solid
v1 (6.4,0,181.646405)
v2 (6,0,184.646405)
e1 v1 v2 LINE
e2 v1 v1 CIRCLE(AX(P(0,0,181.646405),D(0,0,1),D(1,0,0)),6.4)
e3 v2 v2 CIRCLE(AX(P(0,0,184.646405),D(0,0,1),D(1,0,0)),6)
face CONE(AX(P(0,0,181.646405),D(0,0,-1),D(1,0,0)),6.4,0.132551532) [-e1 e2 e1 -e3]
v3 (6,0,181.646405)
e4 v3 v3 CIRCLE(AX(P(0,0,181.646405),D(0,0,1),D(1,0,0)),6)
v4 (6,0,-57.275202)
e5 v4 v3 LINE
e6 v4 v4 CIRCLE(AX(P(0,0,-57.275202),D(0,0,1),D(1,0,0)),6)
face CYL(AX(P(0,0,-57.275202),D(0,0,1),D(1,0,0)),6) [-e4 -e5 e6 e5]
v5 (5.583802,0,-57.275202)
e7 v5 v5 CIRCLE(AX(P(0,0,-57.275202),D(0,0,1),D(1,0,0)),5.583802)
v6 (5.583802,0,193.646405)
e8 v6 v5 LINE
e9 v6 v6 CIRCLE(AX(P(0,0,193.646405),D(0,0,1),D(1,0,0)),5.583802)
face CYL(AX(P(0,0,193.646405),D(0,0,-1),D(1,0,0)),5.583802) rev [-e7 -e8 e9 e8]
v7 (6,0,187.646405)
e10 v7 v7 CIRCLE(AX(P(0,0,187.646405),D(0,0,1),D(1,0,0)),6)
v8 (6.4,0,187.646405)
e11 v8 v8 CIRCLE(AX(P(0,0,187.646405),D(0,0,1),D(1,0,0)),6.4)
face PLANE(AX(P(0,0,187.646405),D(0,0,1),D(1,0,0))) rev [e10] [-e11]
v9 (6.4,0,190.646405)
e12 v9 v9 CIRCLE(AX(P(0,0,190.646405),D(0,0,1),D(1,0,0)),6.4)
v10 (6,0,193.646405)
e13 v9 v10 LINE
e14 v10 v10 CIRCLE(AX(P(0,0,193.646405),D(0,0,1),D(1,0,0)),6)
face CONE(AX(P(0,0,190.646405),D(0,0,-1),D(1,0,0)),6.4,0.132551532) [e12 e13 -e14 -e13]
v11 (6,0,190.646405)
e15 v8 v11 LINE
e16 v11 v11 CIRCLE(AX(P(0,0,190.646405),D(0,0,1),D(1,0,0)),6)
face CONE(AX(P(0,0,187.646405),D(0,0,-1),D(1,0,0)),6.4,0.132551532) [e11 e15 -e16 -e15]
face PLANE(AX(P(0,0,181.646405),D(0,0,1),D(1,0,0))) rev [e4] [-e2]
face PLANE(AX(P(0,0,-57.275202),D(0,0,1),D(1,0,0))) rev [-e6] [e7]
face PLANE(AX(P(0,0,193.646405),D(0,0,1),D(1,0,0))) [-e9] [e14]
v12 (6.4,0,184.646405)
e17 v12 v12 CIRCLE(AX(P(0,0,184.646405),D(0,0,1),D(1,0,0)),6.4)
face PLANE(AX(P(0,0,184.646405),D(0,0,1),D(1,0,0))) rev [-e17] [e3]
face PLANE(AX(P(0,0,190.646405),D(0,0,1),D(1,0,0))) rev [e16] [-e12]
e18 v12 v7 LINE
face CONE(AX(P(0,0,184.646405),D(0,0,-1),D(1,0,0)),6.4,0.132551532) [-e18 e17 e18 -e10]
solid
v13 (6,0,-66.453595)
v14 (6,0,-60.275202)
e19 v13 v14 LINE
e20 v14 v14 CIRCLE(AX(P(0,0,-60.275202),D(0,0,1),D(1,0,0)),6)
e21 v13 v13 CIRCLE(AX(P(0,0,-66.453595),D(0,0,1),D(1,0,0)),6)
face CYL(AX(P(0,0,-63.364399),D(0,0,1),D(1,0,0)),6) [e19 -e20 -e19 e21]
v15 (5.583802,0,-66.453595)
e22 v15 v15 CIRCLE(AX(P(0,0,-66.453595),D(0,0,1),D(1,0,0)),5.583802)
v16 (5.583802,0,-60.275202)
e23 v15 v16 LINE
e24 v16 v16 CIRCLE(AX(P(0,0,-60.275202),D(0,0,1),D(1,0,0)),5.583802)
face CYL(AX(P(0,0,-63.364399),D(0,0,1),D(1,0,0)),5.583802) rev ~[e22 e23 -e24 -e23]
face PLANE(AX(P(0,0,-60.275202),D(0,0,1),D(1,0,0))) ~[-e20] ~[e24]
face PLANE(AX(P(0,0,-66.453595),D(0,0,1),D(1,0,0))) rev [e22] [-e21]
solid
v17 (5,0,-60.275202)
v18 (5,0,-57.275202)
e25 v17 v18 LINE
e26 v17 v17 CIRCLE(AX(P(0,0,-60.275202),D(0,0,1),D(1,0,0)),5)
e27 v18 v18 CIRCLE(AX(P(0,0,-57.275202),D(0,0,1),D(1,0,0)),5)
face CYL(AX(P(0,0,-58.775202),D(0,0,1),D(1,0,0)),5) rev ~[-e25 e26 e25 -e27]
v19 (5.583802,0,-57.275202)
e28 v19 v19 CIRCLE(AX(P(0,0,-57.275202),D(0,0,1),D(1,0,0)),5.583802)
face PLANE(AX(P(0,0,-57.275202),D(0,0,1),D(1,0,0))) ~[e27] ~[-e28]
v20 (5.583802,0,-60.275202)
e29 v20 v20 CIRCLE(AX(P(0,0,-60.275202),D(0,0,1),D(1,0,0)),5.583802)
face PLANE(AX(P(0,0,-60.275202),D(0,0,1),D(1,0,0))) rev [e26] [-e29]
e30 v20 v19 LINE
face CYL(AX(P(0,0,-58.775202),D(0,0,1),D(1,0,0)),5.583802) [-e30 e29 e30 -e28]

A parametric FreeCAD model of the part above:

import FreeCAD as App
import Part
import Sketcher
from FreeCAD import Vector

doc = App.newDocument("Part")
body = doc.addObject("PartDesign::Body", "Body")

# Sketch on XZ plane
sketch1 = body.newObject("Sketcher::SketchObject", "Sketch")
sketch1.AttachmentSupport = (doc.getObject("XZ_Plane"), [""])
sketch1.MapMode = "FlatFace"
sketch1.addGeometry([
    Part.LineSegment(Vector(5.58, -60.28, 0), Vector(5.58, -66.45, 0)),
    Part.LineSegment(Vector(5.58, -66.45, 0), Vector(6, -66.45, 0)),
    Part.LineSegment(Vector(6, -66.45, 0), Vector(6, -60.28, 0)),
    Part.LineSegment(Vector(6, -60.28, 0), Vector(5.58, -60.28, 0)),
], False)
sketch1.addConstraint([
    Sketcher.Constraint("Coincident", 0, 2, 1, 1),
    Sketcher.Constraint("Coincident", 1, 2, 2, 1),
    Sketcher.Constraint("Coincident", 2, 2, 3, 1),
    Sketcher.Constraint("Coincident", 3, 2, 0, 1),
    Sketcher.Constraint("Vertical", 0),
    Sketcher.Constraint("Horizontal", 1),
    Sketcher.Constraint("Vertical", 2),
    Sketcher.Constraint("Horizontal", 3),
    Sketcher.Constraint("DistanceX", -1, 1, 1, 2, 6.0),
    Sketcher.Constraint("DistanceX", 1, 1, 1, 2, 0.416198),
    Sketcher.Constraint("DistanceY", 2, 2, -1, 1, 60.275202),
    Sketcher.Constraint("DistanceY", 0, 2, 0, 1, 6.178393),
])
revolution = body.newObject("PartDesign::Revolution", "Revolution")
revolution.Profile = sketch1
revolution.ReferenceAxis = (sketch1, ["V_Axis"])
revolution.Angle = 360
body2 = doc.addObject("PartDesign::Body", "Body001")

# Sketch on XZ plane
sketch2 = body2.newObject("Sketcher::SketchObject", "Sketch001")
sketch2.AttachmentSupport = (doc.getObject("XZ_Plane001"), [""])
sketch2.MapMode = "FlatFace"
sketch2.addGeometry([
    Part.LineSegment(Vector(5.58, 193.65, 0), Vector(5.58, -57.28, 0)),  # 0
    Part.LineSegment(Vector(5.58, -57.28, 0), Vector(6, -57.28, 0)),  # 1
    Part.LineSegment(Vector(6, -57.28, 0), Vector(6, 181.65, 0)),  # 2
    Part.LineSegment(Vector(6, 181.65, 0), Vector(6.4, 181.65, 0)),  # 3
    Part.LineSegment(Vector(6.4, 181.65, 0), Vector(6, 184.65, 0)),  # 4
    Part.LineSegment(Vector(6, 184.65, 0), Vector(6.4, 184.65, 0)),  # 5
    Part.LineSegment(Vector(6.4, 184.65, 0), Vector(6, 187.65, 0)),  # 6
    Part.LineSegment(Vector(6, 187.65, 0), Vector(6.4, 187.65, 0)),  # 7
    Part.LineSegment(Vector(6.4, 187.65, 0), Vector(6, 190.65, 0)),  # 8
    Part.LineSegment(Vector(6, 190.65, 0), Vector(6.4, 190.65, 0)),  # 9
    Part.LineSegment(Vector(6.4, 190.65, 0), Vector(6, 193.65, 0)),  # 10
    Part.LineSegment(Vector(6, 193.65, 0), Vector(5.58, 193.65, 0)),  # 11
], False)
sketch2.addConstraint([
    Sketcher.Constraint("Coincident", 0, 2, 1, 1),
    Sketcher.Constraint("Coincident", 1, 2, 2, 1),
    Sketcher.Constraint("Coincident", 2, 2, 3, 1),
    Sketcher.Constraint("Coincident", 3, 2, 4, 1),
    Sketcher.Constraint("Coincident", 4, 2, 5, 1),
    Sketcher.Constraint("Coincident", 5, 2, 6, 1),
    Sketcher.Constraint("Coincident", 6, 2, 7, 1),
    Sketcher.Constraint("Coincident", 7, 2, 8, 1),
    Sketcher.Constraint("Coincident", 8, 2, 9, 1),
    Sketcher.Constraint("Coincident", 9, 2, 10, 1),
    Sketcher.Constraint("Coincident", 10, 2, 11, 1),
    Sketcher.Constraint("Coincident", 11, 2, 0, 1),
    Sketcher.Constraint("Vertical", 0),
    Sketcher.Constraint("Horizontal", 1),
    Sketcher.Constraint("Vertical", 2),
    Sketcher.Constraint("Horizontal", 3),
    Sketcher.Constraint("Horizontal", 5),
    Sketcher.Constraint("Horizontal", 7),
    Sketcher.Constraint("Horizontal", 9),
    Sketcher.Constraint("Horizontal", 11),
    Sketcher.Constraint("Parallel", 4, 6),
    Sketcher.Constraint("Parallel", 6, 8),
    Sketcher.Constraint("Parallel", 8, 10),
    Sketcher.Constraint("Vertical", 2, 2, 4, 2),
    Sketcher.Constraint("Vertical", 3, 2, 5, 2),
    Sketcher.Constraint("Vertical", 4, 2, 6, 2),
    Sketcher.Constraint("Vertical", 5, 2, 7, 2),
    Sketcher.Constraint("Vertical", 6, 2, 8, 2),
    Sketcher.Constraint("Vertical", 7, 2, 9, 2),
    Sketcher.Constraint("Vertical", 8, 2, 10, 2),
    Sketcher.Constraint("DistanceX", 3, 1, 3, 2, 0.4),
    Sketcher.Constraint("DistanceX", -1, 1, 1, 2, 6.0),
    Sketcher.Constraint("DistanceY", 2, 2, 4, 2, 3.0),
    Sketcher.Constraint("DistanceX", 1, 1, 1, 2, 0.416198),
    Sketcher.Constraint("DistanceY", 0, 2, -1, 1, 57.275202),
    Sketcher.Constraint("DistanceY", 0, 2, 0, 1, 250.921607),
])
revolution2 = body2.newObject("PartDesign::Revolution", "Revolution001")
revolution2.Profile = sketch2
revolution2.ReferenceAxis = (sketch2, ["V_Axis"])
revolution2.Angle = 360
body3 = doc.addObject("PartDesign::Body", "Body002")

# Sketch on XZ plane
sketch3 = body3.newObject("Sketcher::SketchObject", "Sketch002")
sketch3.AttachmentSupport = (doc.getObject("XZ_Plane002"), [""])
sketch3.MapMode = "FlatFace"
sketch3.addGeometry([
    Part.LineSegment(Vector(5, -57.3, 0), Vector(5, -60.3, 0)),
    Part.LineSegment(Vector(5, -60.3, 0), Vector(5.6, -60.3, 0)),
    Part.LineSegment(Vector(5.6, -60.3, 0), Vector(5.6, -57.3, 0)),
    Part.LineSegment(Vector(5.6, -57.3, 0), Vector(5, -57.3, 0)),
], False)
sketch3.addConstraint([
    Sketcher.Constraint("Coincident", 0, 2, 1, 1),
    Sketcher.Constraint("Coincident", 1, 2, 2, 1),
    Sketcher.Constraint("Coincident", 2, 2, 3, 1),
    Sketcher.Constraint("Coincident", 3, 2, 0, 1),
    Sketcher.Constraint("Vertical", 0),
    Sketcher.Constraint("Horizontal", 1),
    Sketcher.Constraint("Vertical", 2),
    Sketcher.Constraint("Horizontal", 3),
    Sketcher.Constraint("DistanceY", 0, 2, 0, 1, 3.0),
    Sketcher.Constraint("DistanceX", -1, 1, 0, 2, 5.0),
    Sketcher.Constraint("DistanceX", 1, 1, 1, 2, 0.583802),
    Sketcher.Constraint("DistanceY", 0, 2, -1, 1, 60.275202),
])
revolution3 = body3.newObject("PartDesign::Revolution", "Revolution002")
revolution3.Profile = sketch3
revolution3.ReferenceAxis = (sketch3, ["V_Axis"])
revolution3.Angle = 360

doc.recompute()
